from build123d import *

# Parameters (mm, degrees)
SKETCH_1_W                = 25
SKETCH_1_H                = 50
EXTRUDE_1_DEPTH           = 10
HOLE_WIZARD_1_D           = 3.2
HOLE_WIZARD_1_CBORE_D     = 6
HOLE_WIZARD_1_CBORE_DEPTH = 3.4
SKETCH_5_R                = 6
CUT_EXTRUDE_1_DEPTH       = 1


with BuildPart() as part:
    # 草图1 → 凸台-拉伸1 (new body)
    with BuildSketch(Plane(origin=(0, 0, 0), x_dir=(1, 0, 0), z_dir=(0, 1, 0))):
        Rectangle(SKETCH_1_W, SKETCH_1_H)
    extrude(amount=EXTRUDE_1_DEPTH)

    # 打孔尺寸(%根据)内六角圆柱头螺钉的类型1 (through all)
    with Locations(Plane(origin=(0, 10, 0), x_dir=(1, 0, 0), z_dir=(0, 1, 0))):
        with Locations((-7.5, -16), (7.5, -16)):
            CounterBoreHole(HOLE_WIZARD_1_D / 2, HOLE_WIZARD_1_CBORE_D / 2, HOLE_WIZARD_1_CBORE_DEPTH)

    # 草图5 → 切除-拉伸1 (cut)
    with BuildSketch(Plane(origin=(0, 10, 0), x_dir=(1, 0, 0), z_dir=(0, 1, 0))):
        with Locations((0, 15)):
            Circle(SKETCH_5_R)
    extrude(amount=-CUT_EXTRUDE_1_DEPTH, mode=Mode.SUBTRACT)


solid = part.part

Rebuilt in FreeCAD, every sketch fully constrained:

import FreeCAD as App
import Part
import Sketcher
Q = App.Units.Quantity

doc = App.newDocument("Part")
body = doc.addObject("PartDesign::Body", "Body")

# Sketch on XZ plane
sketch1 = body.newObject("Sketcher::SketchObject", "Sketch")
sketch1.AttachmentSupport = (doc.getObject("XZ_Plane"), [""])
sketch1.MapMode = "FlatFace"
sketch1.addGeometry(Part.LineSegment(App.Vector(-12, -25, 0), App.Vector(-12, 25, 0)), False)
sketch1.addGeometry(Part.LineSegment(App.Vector(-12, 25, 0), App.Vector(12, 25, 0)), False)
sketch1.addGeometry(Part.LineSegment(App.Vector(12, 25, 0), App.Vector(12, -25, 0)), False)
sketch1.addGeometry(Part.LineSegment(App.Vector(12, -25, 0), App.Vector(-12, -25, 0)), False)
sketch1.addConstraint(Sketcher.Constraint("Coincident", 0, 2, 1, 1))
sketch1.addConstraint(Sketcher.Constraint("Coincident", 1, 2, 2, 1))
sketch1.addConstraint(Sketcher.Constraint("Coincident", 2, 2, 3, 1))
sketch1.addConstraint(Sketcher.Constraint("Coincident", 3, 2, 0, 1))
sketch1.addConstraint(Sketcher.Constraint("Vertical", 0))
sketch1.addConstraint(Sketcher.Constraint("Horizontal", 1))
sketch1.addConstraint(Sketcher.Constraint("Vertical", 2))
sketch1.addConstraint(Sketcher.Constraint("Horizontal", 3))
sketch1.addConstraint(Sketcher.Constraint("Symmetric", 0, 2, 2, 2, -1, 1))
sketch1.addConstraint(Sketcher.Constraint("DistanceX", 1, 1, 1, 2, Q("25 mm")))
sketch1.addConstraint(Sketcher.Constraint("DistanceY", 0, 1, 0, 2, Q("50 mm")))
pad1 = body.newObject("PartDesign::Pad", "Pad")
pad1.Profile = sketch1
pad1.Length = 10
pad1.Reversed = True

# Sketch on XZ plane
sketch2 = body.newObject("Sketcher::SketchObject", "Sketch001")
sketch2.AttachmentSupport = (doc.getObject("XZ_Plane"), [""])
sketch2.MapMode = "FlatFace"
sketch2.AttachmentOffset = App.Placement(App.Vector(0, 0, -10), App.Rotation())
sketch2.addGeometry(Part.Circle(App.Vector(-7.5, 16, 0), App.Vector(0, 0, 1), 1.6), False)
sketch2.addGeometry(Part.Circle(App.Vector(7.5, 16, 0), App.Vector(0, 0, 1), 1.6), False)
sketch2.addConstraint(Sketcher.Constraint("Equal", 0, 1))
sketch2.addConstraint(Sketcher.Constraint("Symmetric", 0, 3, 1, 3, -2))
sketch2.addConstraint(Sketcher.Constraint("Diameter", 0, Q("3.2 mm")))
sketch2.addConstraint(Sketcher.Constraint("DistanceY", -1, 1, 0, 3, Q("16 mm")))
sketch2.addConstraint(Sketcher.Constraint("DistanceX", 0, 3, 1, 3, Q("15 mm")))
doc.recompute()
hole = body.newObject("PartDesign::Hole", "Hole")
hole.Profile = sketch2
hole.ThreadType = "None"
hole.Diameter = 3.2
hole.DepthType = "ThroughAll"
hole.HoleCutType = "Counterbore"
hole.HoleCutDiameter = 6
hole.HoleCutDepth = 3.4
hole.Reversed = True

# Sketch on XZ plane
sketch3 = body.newObject("Sketcher::SketchObject", "Sketch002")
sketch3.AttachmentSupport = (doc.getObject("XZ_Plane"), [""])
sketch3.MapMode = "FlatFace"
sketch3.AttachmentOffset = App.Placement(App.Vector(0, 0, -10), App.Rotation())
sketch3.addGeometry(Part.Circle(App.Vector(0, -15, 0), App.Vector(0, 0, 1), 6), False)
sketch3.addConstraint(Sketcher.Constraint("PointOnObject", 0, 3, -2))
sketch3.addConstraint(Sketcher.Constraint("Diameter", 0, Q("12 mm")))
sketch3.addConstraint(Sketcher.Constraint("DistanceY", 0, 3, -1, 1, Q("15 mm")))
pocket1 = body.newObject("PartDesign::Pocket", "Pocket")
pocket1.Profile = sketch3
pocket1.Length = 1
pocket1.Reversed = True

doc.recompute()
